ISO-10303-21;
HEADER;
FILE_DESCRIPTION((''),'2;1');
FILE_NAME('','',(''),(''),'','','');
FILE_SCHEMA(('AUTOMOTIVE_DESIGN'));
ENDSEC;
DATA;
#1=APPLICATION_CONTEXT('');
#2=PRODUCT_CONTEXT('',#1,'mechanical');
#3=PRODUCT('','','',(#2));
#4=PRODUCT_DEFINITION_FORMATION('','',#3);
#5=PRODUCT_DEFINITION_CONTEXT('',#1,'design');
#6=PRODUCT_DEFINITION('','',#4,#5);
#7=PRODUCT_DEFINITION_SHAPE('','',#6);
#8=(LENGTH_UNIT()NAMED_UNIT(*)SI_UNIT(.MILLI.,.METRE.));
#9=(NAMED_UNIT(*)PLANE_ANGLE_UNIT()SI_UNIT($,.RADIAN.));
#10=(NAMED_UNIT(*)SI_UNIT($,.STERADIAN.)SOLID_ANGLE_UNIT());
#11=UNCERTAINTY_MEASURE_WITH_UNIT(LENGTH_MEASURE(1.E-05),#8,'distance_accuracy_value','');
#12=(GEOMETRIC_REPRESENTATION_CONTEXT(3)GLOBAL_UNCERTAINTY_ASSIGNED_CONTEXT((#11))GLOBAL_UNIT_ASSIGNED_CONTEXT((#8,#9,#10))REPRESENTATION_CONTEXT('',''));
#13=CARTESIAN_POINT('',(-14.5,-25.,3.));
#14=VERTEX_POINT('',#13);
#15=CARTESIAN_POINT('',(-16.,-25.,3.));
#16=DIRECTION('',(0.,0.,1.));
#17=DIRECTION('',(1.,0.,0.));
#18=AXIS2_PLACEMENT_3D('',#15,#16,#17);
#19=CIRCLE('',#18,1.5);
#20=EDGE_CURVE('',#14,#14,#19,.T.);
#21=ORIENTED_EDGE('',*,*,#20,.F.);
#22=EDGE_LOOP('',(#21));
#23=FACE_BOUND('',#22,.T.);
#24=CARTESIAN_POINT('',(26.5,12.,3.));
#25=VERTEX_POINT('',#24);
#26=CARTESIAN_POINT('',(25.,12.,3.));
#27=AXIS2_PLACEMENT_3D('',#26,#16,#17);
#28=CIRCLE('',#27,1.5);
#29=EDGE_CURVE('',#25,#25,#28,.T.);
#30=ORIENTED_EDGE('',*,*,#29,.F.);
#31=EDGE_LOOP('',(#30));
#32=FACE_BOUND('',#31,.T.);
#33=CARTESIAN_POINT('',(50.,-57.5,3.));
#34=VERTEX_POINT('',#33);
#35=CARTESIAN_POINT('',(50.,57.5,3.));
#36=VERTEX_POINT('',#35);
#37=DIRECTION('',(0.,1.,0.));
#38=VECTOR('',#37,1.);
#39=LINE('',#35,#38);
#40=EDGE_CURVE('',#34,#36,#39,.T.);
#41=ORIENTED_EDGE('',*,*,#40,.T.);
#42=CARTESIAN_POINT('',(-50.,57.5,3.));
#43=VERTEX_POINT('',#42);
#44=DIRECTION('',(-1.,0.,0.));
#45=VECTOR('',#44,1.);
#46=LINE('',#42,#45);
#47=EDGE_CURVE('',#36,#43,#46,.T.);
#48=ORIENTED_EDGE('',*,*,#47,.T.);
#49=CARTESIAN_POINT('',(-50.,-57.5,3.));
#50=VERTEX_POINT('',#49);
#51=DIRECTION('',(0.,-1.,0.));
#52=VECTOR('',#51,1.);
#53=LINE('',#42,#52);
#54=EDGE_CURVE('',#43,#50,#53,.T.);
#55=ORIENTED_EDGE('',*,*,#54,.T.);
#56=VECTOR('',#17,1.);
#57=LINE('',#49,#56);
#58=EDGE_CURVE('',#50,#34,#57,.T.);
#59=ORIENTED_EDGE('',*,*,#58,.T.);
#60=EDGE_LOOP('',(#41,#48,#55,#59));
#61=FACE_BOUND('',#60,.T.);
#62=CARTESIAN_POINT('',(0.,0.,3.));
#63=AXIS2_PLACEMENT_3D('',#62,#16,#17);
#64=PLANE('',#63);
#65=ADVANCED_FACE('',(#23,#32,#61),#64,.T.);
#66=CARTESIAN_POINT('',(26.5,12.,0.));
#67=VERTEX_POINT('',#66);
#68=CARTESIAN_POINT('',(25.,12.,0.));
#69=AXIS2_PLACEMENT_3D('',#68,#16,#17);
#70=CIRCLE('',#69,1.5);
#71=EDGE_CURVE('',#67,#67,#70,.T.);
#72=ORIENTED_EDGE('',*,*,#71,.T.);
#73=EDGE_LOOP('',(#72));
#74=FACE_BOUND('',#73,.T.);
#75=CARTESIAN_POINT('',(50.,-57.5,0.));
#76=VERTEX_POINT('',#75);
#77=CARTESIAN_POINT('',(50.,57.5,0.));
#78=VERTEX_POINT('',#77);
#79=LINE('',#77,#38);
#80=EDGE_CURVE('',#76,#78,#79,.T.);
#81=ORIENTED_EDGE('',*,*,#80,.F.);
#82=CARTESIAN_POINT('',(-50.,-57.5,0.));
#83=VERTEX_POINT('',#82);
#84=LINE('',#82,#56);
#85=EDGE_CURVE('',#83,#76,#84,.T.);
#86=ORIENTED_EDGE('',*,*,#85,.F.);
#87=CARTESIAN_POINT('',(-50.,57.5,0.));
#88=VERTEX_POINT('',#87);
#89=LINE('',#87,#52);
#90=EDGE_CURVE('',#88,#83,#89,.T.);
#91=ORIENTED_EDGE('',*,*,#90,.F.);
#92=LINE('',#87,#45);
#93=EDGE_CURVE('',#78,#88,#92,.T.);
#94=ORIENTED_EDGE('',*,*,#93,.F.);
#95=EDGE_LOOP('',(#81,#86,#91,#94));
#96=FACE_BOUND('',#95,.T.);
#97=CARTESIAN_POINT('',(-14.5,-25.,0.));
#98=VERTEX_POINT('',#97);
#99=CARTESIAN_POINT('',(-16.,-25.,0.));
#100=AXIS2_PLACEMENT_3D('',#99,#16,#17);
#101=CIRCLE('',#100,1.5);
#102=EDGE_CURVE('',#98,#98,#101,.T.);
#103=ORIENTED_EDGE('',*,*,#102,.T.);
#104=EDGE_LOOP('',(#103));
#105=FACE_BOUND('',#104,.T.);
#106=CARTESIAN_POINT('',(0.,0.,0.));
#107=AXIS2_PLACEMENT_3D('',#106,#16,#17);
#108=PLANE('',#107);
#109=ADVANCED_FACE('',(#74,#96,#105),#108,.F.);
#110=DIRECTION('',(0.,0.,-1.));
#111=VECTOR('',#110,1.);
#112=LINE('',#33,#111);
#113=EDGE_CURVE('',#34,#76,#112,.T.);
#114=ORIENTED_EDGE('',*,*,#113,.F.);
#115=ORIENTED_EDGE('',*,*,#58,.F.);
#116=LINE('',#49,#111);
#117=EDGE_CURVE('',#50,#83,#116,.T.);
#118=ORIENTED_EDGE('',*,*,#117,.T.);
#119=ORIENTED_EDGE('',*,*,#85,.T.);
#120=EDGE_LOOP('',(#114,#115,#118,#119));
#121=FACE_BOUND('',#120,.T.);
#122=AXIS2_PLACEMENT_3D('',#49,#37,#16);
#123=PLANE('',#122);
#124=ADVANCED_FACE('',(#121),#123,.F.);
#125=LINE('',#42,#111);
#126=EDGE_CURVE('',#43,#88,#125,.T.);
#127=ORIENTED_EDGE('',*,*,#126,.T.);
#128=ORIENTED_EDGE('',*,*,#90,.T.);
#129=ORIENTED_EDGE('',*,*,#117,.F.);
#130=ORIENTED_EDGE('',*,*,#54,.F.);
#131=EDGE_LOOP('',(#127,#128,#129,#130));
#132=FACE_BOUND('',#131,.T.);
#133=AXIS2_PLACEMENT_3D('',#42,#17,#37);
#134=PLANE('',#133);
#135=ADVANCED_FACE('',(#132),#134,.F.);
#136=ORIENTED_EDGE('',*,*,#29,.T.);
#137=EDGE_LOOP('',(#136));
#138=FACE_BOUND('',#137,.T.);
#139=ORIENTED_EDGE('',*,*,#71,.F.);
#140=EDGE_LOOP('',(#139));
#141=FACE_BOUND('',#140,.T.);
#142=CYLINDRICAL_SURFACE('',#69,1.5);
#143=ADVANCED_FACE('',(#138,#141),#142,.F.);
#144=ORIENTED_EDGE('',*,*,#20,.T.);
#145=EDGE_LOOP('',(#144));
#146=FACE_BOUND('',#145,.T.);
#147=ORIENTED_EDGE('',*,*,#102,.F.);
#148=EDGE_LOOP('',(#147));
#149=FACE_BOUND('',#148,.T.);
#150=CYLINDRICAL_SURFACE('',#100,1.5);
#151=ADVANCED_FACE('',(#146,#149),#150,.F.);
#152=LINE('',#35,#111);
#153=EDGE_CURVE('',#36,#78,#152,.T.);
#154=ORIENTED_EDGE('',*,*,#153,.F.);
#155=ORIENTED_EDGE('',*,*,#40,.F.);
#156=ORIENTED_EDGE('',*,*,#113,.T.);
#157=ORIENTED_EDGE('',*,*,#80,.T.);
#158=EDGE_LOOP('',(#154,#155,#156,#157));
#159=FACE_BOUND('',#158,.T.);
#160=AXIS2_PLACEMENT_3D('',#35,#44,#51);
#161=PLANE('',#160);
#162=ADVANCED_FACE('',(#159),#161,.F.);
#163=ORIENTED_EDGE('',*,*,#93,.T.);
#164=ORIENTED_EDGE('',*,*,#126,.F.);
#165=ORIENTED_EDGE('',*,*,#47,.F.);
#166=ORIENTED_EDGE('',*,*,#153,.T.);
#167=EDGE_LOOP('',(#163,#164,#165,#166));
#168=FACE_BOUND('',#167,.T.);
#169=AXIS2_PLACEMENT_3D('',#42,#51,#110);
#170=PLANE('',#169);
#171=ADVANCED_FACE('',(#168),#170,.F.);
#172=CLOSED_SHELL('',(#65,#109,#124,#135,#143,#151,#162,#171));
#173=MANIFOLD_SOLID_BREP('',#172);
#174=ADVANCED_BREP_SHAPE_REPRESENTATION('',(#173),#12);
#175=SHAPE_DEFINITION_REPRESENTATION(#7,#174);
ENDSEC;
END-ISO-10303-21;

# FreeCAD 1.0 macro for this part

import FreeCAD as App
import Part
import Sketcher

doc = App.newDocument("Part")
body = doc.addObject("PartDesign::Body", "Body")

# Sketch on XY plane
sketch1 = body.newObject("Sketcher::SketchObject", "Sketch")
sketch1.AttachmentSupport = (doc.getObject("XY_Plane"), [""])
sketch1.MapMode = "FlatFace"
sketch1.addGeometry([
    Part.LineSegment(App.Vector(-50, 58, 0), App.Vector(-50, -58, 0)),
    Part.LineSegment(App.Vector(-50, -58, 0), App.Vector(50, -58, 0)),
    Part.LineSegment(App.Vector(50, -58, 0), App.Vector(50, 58, 0)),
    Part.LineSegment(App.Vector(50, 58, 0), App.Vector(-50, 58, 0)),
], False)
sketch1.addConstraint([
    Sketcher.Constraint("Coincident", 0, 2, 1, 1),
    Sketcher.Constraint("Coincident", 1, 2, 2, 1),
    Sketcher.Constraint("Coincident", 2, 2, 3, 1),
    Sketcher.Constraint("Coincident", 3, 2, 0, 1),
    Sketcher.Constraint("Vertical", 0),
    Sketcher.Constraint("Horizontal", 1),
    Sketcher.Constraint("Vertical", 2),
    Sketcher.Constraint("Horizontal", 3),
    Sketcher.Constraint("Symmetric", 0, 2, 2, 2, -1, 1),
    Sketcher.Constraint("DistanceX", 1, 1, 1, 2, 100.0),
    Sketcher.Constraint("DistanceY", 0, 2, 0, 1, 115.0),
])
pad1 = body.newObject("PartDesign::Pad", "Pad")
pad1.Profile = sketch1
pad1.Length = 3

# Sketch on XY plane
sketch2 = body.newObject("Sketcher::SketchObject", "Sketch001")
sketch2.AttachmentSupport = (doc.getObject("XY_Plane"), [""])
sketch2.MapMode = "FlatFace"
sketch2.AttachmentOffset = App.Placement(App.Vector(0, 0, 3), App.Rotation())
sketch2.addGeometry([
    Part.Circle(App.Vector(25, 12, 0), App.Vector(0, 0, 1), 1.5),
    Part.Circle(App.Vector(-16, -25, 0), App.Vector(0, 0, 1), 1.5),
], False)
sketch2.addConstraint([
    Sketcher.Constraint("Equal", 0, 1),
    Sketcher.Constraint("Diameter", 0, 3.0),
    Sketcher.Constraint("DistanceX", -1, 1, 0, 3, 25.0),
    Sketcher.Constraint("DistanceY", -1, 1, 0, 3, 12.0),
    Sketcher.Constraint("DistanceX", 1, 3, -1, 1, 16.0),
    Sketcher.Constraint("DistanceY", 1, 3, -1, 1, 25.0),
])
pocket1 = body.newObject("PartDesign::Pocket", "Pocket")
pocket1.Profile = sketch2
pocket1.Length = 3

doc.recompute()
